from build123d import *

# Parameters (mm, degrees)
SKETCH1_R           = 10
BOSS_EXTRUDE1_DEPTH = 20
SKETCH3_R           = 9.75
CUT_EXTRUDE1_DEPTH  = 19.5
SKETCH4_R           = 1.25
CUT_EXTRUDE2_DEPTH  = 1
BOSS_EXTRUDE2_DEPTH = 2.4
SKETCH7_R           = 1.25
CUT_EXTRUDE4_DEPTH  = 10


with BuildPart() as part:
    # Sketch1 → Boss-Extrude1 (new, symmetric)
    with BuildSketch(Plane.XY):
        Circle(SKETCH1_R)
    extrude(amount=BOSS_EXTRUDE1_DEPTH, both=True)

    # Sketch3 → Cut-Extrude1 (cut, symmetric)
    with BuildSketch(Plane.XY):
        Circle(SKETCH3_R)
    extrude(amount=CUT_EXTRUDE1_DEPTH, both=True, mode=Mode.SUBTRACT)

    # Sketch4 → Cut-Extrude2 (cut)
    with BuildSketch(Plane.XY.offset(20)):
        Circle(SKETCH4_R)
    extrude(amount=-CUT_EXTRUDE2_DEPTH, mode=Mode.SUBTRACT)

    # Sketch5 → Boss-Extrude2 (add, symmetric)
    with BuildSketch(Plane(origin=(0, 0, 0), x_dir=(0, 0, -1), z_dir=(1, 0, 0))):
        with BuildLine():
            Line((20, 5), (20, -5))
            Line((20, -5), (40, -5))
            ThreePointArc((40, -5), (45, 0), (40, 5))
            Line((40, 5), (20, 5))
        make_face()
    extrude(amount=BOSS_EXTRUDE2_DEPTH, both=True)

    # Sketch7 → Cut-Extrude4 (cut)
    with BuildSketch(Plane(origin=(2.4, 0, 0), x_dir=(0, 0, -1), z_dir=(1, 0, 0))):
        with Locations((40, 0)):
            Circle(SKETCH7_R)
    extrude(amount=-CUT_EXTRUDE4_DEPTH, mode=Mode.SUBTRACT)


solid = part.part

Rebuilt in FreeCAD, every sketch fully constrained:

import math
import FreeCAD as App
import Part
import Sketcher
from FreeCAD import Vector
Q = App.Units.Quantity

doc = App.newDocument("Part")
body = doc.addObject("PartDesign::Body", "Body")

sketch1 = doc.addObject("Sketcher::SketchObject", "Sketch")
body.addObject(sketch1)
sketch1.AttachmentSupport = (doc.XY_Plane, [""])
sketch1.MapMode = "FlatFace"
sketch1.addGeometry(Part.Circle(Vector(0, 0, 0), Vector(0, 0, 1), 10), False)
sketch1.addConstraint([
    Sketcher.Constraint("Coincident", 0, 3, -1, 1),
    Sketcher.Constraint("Diameter", 0, Q("20 mm")),
])
pad1 = doc.addObject("PartDesign::Pad", "Pad")
body.addObject(pad1)
pad1.Profile = sketch1
pad1.Length = 40
pad1.Midplane = True

sketch2 = doc.addObject("Sketcher::SketchObject", "Sketch001")
body.addObject(sketch2)
sketch2.AttachmentSupport = (doc.XY_Plane, [""])
sketch2.MapMode = "FlatFace"
sketch2.addGeometry(Part.Circle(Vector(0, 0, 0), Vector(0, 0, 1), 10), False)
sketch2.addConstraint([
    Sketcher.Constraint("Coincident", 0, 3, -1, 1),
    Sketcher.Constraint("Diameter", 0, Q("19.5 mm")),
])
pocket1 = doc.addObject("PartDesign::Pocket", "Pocket")
body.addObject(pocket1)
pocket1.Profile = sketch2
pocket1.Length = 39
pocket1.Midplane = True

sketch3 = doc.addObject("Sketcher::SketchObject", "Sketch002")
body.addObject(sketch3)
sketch3.AttachmentSupport = (doc.XY_Plane, [""])
sketch3.MapMode = "FlatFace"
sketch3.AttachmentOffset = App.Placement(Vector(0, 0, 20), App.Rotation())
sketch3.addGeometry(Part.Circle(Vector(0, 0, 0), Vector(0, 0, 1), 1.2), False)
sketch3.addConstraint([
    Sketcher.Constraint("Coincident", 0, 3, -1, 1),
    Sketcher.Constraint("Diameter", 0, Q("2.5 mm")),
])
pocket2 = doc.addObject("PartDesign::Pocket", "Pocket001")
body.addObject(pocket2)
pocket2.Profile = sketch3
pocket2.Length = 1

sketch4 = doc.addObject("Sketcher::SketchObject", "Sketch003")
body.addObject(sketch4)
sketch4.AttachmentSupport = (doc.YZ_Plane, [""])
sketch4.MapMode = "FlatFace"
sketch4.addGeometry([
    Part.LineSegment(Vector(5, -20, 0), Vector(-5, -20, 0)),
    Part.LineSegment(Vector(-5, -20, 0), Vector(-5, -40, 0)),
    Part.ArcOfCircle(Part.Circle(Vector(0, -40, 0), Vector(0, 0, 1), 5), math.radians(180), math.radians(360)),
    Part.LineSegment(Vector(5, -40, 0), Vector(5, -20, 0)),
], False)
sketch4.addConstraint([
    Sketcher.Constraint("Coincident", 0, 2, 1, 1),
    Sketcher.Constraint("Tangent", 1, 2, 2, 1),
    Sketcher.Constraint("Tangent", 2, 2, 3, 1),
    Sketcher.Constraint("Coincident", 3, 2, 0, 1),
    Sketcher.Constraint("Horizontal", 0),
    Sketcher.Constraint("Vertical", 1),
    Sketcher.Constraint("Vertical", 3),
    Sketcher.Constraint("PointOnObject", 2, 3, -2),
    Sketcher.Constraint("Radius", 2, Q("5 mm")),
    Sketcher.Constraint("DistanceY", 1, 2, 1, 1, Q("20 mm")),
    Sketcher.Constraint("DistanceY", 2, 3, -1, 1, Q("40 mm")),
])
pad2 = doc.addObject("PartDesign::Pad", "Pad001")
body.addObject(pad2)
pad2.Profile = sketch4
pad2.Length = 4.8
pad2.Midplane = True

sketch5 = doc.addObject("Sketcher::SketchObject", "Sketch004")
body.addObject(sketch5)
sketch5.AttachmentSupport = (doc.YZ_Plane, [""])
sketch5.MapMode = "FlatFace"
sketch5.AttachmentOffset = App.Placement(Vector(0, 0, 2.4), App.Rotation())
sketch5.addGeometry(Part.Circle(Vector(0, -40, 0), Vector(0, 0, 1), 1.2), False)
sketch5.addConstraint([
    Sketcher.Constraint("PointOnObject", 0, 3, -2),
    Sketcher.Constraint("Diameter", 0, Q("2.5 mm")),
    Sketcher.Constraint("DistanceY", 0, 3, -1, 1, Q("40 mm")),
])
pocket3 = doc.addObject("PartDesign::Pocket", "Pocket002")
body.addObject(pocket3)
pocket3.Profile = sketch5
pocket3.Length = 10

doc.recompute()
